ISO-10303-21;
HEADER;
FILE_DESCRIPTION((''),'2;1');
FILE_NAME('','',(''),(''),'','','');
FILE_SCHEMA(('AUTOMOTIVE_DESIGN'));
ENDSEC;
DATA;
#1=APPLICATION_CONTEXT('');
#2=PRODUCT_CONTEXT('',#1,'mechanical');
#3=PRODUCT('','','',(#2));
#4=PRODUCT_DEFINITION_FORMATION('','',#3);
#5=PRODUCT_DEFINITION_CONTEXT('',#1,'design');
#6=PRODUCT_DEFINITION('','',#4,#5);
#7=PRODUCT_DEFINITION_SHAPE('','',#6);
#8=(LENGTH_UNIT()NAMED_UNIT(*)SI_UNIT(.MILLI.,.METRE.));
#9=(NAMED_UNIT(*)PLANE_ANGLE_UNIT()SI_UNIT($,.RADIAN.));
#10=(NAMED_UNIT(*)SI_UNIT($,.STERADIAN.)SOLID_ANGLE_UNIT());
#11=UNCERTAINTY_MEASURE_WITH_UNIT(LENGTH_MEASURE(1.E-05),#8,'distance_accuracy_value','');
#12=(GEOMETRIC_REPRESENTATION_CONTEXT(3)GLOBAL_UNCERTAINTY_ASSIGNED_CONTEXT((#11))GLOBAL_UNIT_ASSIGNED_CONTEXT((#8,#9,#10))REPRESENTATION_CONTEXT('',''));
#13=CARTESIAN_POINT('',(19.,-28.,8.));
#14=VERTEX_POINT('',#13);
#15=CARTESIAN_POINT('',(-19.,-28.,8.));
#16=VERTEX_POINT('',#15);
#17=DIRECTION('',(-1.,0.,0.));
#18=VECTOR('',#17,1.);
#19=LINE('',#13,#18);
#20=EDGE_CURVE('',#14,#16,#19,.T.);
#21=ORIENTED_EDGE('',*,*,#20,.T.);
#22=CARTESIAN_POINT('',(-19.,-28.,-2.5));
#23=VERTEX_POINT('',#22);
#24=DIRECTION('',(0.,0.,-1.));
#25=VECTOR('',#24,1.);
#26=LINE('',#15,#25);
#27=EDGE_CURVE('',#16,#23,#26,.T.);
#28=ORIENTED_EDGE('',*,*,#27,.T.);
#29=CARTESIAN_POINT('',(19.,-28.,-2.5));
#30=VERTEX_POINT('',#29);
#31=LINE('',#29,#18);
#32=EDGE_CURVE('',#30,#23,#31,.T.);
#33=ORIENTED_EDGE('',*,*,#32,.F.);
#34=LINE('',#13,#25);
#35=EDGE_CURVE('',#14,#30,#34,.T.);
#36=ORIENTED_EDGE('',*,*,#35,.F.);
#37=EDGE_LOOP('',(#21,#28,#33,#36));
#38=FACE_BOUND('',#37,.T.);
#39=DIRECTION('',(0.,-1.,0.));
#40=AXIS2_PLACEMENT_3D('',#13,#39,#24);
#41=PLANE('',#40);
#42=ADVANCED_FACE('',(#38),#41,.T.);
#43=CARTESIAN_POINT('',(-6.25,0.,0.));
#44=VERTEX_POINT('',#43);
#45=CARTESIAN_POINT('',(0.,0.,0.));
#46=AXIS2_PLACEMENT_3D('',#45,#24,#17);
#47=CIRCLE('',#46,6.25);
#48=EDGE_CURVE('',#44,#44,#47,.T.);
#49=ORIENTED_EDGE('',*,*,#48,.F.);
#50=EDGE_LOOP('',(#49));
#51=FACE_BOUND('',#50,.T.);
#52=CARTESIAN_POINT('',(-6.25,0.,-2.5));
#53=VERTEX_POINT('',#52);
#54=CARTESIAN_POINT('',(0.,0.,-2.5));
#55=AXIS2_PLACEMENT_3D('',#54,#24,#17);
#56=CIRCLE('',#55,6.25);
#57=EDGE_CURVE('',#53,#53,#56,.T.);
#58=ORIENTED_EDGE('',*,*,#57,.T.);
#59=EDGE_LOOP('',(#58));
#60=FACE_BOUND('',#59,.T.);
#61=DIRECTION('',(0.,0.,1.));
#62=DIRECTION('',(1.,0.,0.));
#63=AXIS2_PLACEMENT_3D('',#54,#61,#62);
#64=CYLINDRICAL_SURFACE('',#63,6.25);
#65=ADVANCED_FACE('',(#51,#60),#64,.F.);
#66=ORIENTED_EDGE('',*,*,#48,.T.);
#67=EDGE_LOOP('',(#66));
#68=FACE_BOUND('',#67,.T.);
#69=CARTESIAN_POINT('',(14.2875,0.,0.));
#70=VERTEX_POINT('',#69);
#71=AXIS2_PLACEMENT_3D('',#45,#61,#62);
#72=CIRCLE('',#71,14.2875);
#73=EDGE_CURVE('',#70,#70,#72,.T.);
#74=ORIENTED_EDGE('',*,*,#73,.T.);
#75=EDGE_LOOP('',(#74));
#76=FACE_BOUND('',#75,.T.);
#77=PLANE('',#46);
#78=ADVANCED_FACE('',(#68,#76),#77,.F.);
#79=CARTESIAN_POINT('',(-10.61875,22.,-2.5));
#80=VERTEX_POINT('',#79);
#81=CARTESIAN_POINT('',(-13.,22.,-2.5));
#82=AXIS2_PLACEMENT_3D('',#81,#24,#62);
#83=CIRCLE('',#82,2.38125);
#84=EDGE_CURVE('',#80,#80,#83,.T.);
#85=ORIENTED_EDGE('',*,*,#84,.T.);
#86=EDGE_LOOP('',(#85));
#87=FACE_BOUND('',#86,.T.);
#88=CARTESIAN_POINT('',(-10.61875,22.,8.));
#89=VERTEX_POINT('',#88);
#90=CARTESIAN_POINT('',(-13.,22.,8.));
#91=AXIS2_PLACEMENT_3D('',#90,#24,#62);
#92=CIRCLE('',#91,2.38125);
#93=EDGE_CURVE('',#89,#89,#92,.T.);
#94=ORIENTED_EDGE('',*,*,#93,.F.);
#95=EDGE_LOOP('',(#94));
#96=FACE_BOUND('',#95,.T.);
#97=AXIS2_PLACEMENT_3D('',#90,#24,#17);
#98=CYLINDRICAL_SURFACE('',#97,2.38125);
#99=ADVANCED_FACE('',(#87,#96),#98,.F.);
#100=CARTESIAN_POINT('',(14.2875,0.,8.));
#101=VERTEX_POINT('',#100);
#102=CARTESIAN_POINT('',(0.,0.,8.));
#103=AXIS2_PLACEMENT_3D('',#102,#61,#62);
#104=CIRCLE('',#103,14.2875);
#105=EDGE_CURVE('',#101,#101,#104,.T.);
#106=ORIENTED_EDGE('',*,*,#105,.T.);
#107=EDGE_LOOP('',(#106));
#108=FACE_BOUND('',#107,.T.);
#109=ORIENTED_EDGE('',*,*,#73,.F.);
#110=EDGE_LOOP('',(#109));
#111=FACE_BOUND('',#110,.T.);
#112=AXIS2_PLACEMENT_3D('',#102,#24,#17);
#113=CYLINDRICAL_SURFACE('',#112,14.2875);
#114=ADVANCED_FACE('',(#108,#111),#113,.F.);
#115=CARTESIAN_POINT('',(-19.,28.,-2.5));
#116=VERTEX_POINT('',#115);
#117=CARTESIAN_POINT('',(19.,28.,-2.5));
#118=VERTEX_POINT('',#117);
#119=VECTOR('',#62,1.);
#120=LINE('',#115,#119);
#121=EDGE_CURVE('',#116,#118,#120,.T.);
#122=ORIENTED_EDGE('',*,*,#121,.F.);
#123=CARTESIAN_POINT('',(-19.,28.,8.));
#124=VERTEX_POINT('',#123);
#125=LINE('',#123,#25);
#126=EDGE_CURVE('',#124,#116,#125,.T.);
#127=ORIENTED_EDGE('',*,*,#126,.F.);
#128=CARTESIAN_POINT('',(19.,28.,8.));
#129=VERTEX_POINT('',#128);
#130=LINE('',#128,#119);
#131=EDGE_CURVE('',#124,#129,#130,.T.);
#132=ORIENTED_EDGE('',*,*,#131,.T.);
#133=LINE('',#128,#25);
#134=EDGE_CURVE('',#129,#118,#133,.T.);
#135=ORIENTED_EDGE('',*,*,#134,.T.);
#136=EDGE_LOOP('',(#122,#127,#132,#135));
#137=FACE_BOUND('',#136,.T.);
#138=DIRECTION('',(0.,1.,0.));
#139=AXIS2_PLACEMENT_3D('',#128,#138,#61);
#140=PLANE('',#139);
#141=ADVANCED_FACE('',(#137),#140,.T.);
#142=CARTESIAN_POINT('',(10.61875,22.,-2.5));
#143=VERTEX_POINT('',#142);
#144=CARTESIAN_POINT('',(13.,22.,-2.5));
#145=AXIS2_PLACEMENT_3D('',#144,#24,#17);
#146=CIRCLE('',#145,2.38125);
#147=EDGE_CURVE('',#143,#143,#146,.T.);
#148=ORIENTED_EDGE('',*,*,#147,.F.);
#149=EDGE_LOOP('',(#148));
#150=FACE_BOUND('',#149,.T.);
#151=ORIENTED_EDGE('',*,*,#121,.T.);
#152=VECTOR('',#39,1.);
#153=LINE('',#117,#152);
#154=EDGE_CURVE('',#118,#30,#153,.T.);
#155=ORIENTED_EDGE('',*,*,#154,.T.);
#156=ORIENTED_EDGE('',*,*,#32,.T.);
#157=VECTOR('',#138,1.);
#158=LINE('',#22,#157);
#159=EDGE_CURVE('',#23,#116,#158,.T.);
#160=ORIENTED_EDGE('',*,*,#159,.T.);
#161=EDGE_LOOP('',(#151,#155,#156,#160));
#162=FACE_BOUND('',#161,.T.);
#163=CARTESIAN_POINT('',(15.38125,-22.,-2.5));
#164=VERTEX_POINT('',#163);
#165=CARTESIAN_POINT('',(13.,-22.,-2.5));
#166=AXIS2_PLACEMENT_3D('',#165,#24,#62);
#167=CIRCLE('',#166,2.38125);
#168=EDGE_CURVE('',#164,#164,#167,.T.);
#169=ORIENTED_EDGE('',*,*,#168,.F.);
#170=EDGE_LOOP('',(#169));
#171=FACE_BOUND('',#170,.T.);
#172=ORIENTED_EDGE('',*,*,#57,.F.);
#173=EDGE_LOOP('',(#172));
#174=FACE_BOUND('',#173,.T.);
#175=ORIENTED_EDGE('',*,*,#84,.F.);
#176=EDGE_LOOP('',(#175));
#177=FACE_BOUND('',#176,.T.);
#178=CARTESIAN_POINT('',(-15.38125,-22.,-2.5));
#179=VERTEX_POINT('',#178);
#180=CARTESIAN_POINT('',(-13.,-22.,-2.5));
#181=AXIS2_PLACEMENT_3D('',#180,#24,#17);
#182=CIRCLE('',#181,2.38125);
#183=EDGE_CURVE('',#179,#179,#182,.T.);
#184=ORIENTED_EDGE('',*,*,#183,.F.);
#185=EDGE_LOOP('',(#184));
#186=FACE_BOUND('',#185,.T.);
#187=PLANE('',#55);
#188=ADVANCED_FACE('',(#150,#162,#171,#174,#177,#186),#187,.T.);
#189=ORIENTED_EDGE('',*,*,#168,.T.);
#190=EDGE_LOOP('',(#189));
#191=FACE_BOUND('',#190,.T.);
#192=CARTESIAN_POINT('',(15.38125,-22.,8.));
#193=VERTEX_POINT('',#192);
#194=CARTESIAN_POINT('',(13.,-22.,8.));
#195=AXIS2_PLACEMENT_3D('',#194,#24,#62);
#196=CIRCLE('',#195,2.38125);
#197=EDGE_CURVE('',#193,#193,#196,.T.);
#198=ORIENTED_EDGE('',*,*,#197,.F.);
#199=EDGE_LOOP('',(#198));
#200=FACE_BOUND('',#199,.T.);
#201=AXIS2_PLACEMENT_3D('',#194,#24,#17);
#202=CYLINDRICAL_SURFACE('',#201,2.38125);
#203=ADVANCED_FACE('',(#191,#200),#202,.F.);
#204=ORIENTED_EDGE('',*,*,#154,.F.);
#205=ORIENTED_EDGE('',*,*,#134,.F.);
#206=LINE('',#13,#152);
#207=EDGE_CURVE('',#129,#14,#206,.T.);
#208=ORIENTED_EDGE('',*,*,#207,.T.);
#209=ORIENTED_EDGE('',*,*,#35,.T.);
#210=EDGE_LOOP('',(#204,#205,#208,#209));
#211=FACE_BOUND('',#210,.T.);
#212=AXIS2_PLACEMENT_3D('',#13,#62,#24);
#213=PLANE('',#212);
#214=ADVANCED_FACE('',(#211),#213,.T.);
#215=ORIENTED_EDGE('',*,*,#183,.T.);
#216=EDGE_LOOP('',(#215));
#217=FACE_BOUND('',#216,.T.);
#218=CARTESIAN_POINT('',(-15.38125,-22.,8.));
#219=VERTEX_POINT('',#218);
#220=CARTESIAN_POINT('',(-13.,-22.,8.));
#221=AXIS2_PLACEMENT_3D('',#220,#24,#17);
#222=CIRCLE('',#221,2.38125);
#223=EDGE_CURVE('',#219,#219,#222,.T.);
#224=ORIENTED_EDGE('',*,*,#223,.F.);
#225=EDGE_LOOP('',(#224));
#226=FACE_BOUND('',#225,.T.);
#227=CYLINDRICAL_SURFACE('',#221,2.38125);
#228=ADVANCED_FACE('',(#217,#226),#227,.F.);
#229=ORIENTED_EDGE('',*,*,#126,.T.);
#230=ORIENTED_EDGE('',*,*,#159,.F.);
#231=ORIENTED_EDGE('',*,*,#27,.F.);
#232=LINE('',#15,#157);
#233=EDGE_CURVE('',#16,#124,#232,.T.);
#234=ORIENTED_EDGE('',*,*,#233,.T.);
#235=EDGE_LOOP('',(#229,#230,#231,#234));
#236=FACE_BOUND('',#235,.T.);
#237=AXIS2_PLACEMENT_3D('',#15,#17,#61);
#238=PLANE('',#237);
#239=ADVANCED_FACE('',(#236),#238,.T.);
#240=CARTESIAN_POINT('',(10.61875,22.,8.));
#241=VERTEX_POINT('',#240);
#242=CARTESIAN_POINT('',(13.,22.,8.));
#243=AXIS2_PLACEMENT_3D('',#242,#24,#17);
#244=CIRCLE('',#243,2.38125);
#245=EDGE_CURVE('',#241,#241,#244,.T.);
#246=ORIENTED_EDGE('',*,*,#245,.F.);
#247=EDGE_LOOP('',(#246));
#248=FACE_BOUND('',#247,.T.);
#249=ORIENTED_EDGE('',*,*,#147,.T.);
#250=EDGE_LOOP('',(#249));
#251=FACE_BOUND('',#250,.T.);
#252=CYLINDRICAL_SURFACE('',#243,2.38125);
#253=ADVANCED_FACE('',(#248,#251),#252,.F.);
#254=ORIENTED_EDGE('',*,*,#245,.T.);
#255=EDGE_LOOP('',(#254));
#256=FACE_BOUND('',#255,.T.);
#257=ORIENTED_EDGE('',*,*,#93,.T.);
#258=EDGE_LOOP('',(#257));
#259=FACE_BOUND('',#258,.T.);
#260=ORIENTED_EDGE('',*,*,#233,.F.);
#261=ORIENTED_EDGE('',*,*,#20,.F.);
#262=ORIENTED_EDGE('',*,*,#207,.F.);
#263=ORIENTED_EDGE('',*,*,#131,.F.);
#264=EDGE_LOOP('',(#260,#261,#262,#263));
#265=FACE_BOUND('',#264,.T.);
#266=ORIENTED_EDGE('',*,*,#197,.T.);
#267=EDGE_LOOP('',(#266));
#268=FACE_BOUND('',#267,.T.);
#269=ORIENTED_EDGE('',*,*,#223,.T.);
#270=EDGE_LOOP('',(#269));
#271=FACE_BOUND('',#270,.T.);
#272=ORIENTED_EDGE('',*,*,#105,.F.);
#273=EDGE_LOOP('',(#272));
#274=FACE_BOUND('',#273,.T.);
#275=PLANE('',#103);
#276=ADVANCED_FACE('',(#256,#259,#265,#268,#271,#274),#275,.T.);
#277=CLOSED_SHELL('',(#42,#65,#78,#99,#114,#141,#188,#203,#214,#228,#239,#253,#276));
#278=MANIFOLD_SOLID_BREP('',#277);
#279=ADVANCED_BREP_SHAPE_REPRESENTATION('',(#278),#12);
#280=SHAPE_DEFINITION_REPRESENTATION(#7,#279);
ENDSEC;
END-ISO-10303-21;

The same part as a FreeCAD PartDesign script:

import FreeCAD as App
import Part
import Sketcher
Q = App.Units.Quantity

doc = App.newDocument("Part")
body = doc.addObject("PartDesign::Body", "Body")

sketch1 = body.newObject("Sketcher::SketchObject", "Sketch")
sketch1.AttachmentSupport = (doc.getObject("XY_Plane"), [""])
sketch1.MapMode = "FlatFace"
sketch1.addGeometry(Part.Circle(App.Vector(0, 0, 0), App.Vector(0, 0, 1), 18), False)
sketch1.addGeometry(Part.Circle(App.Vector(0, 0, 0), App.Vector(0, 0, 1), 14), False)
sketch1.addConstraint(Sketcher.Constraint("Coincident", 0, 3, -1, 1))
sketch1.addConstraint(Sketcher.Constraint("Coincident", 1, 3, -1, 1))
sketch1.addConstraint(Sketcher.Constraint("Diameter", 0, Q("36.575 mm")))
sketch1.addConstraint(Sketcher.Constraint("Diameter", 1, Q("28.575 mm")))
pad1 = body.newObject("PartDesign::Pad", "Pad")
pad1.Profile = sketch1
pad1.Length = 8

sketch2 = body.newObject("Sketcher::SketchObject", "Sketch001")
sketch2.AttachmentSupport = (doc.getObject("XY_Plane"), [""])
sketch2.MapMode = "FlatFace"
sketch2.addGeometry(Part.LineSegment(App.Vector(19, 28, 0), App.Vector(19, -28, 0)), False)
sketch2.addGeometry(Part.LineSegment(App.Vector(19, -28, 0), App.Vector(-19, -28, 0)), False)
sketch2.addGeometry(Part.LineSegment(App.Vector(-19, -28, 0), App.Vector(-19, 28, 0)), False)
sketch2.addGeometry(Part.LineSegment(App.Vector(-19, 28, 0), App.Vector(19, 28, 0)), False)
sketch2.addGeometry(Part.Circle(App.Vector(0, 0, 0), App.Vector(0, 0, 1), 18), False)
sketch2.addConstraint(Sketcher.Constraint("Coincident", 0, 2, 1, 1))
sketch2.addConstraint(Sketcher.Constraint("Coincident", 1, 2, 2, 1))
sketch2.addConstraint(Sketcher.Constraint("Coincident", 2, 2, 3, 1))
sketch2.addConstraint(Sketcher.Constraint("Coincident", 3, 2, 0, 1))
sketch2.addConstraint(Sketcher.Constraint("Vertical", 0))
sketch2.addConstraint(Sketcher.Constraint("Horizontal", 1))
sketch2.addConstraint(Sketcher.Constraint("Vertical", 2))
sketch2.addConstraint(Sketcher.Constraint("Horizontal", 3))
sketch2.addConstraint(Sketcher.Constraint("Coincident", 4, 3, -1, 1))
sketch2.addConstraint(Sketcher.Constraint("Symmetric", 0, 2, 2, 2, -1, 1))
sketch2.addConstraint(Sketcher.Constraint("DistanceX", 1, 2, 1, 1, Q("38 mm")))
sketch2.addConstraint(Sketcher.Constraint("DistanceY", 0, 2, 0, 1, Q("56 mm")))
sketch2.addConstraint(Sketcher.Constraint("Diameter", 4, Q("36.575 mm")))
pad2 = body.newObject("PartDesign::Pad", "Pad001")
pad2.Profile = sketch2
pad2.Length = 8

sketch3 = body.newObject("Sketcher::SketchObject", "Sketch002")
sketch3.AttachmentSupport = (doc.getObject("XY_Plane"), [""])
sketch3.MapMode = "FlatFace"
sketch3.addGeometry(Part.LineSegment(App.Vector(19, 28, 0), App.Vector(19, -28, 0)), False)
sketch3.addGeometry(Part.LineSegment(App.Vector(19, -28, 0), App.Vector(-19, -28, 0)), False)
sketch3.addGeometry(Part.LineSegment(App.Vector(-19, -28, 0), App.Vector(-19, 28, 0)), False)
sketch3.addGeometry(Part.LineSegment(App.Vector(-19, 28, 0), App.Vector(19, 28, 0)), False)
sketch3.addGeometry(Part.Circle(App.Vector(0, 0, 0), App.Vector(0, 0, 1), 6), False)
sketch3.addConstraint(Sketcher.Constraint("Coincident", 0, 2, 1, 1))
sketch3.addConstraint(Sketcher.Constraint("Coincident", 1, 2, 2, 1))
sketch3.addConstraint(Sketcher.Constraint("Coincident", 2, 2, 3, 1))
sketch3.addConstraint(Sketcher.Constraint("Coincident", 3, 2, 0, 1))
sketch3.addConstraint(Sketcher.Constraint("Vertical", 0))
sketch3.addConstraint(Sketcher.Constraint("Horizontal", 1))
sketch3.addConstraint(Sketcher.Constraint("Vertical", 2))
sketch3.addConstraint(Sketcher.Constraint("Horizontal", 3))
sketch3.addConstraint(Sketcher.Constraint("Coincident", 4, 3, -1, 1))
sketch3.addConstraint(Sketcher.Constraint("Symmetric", 0, 2, 2, 2, -1, 1))
sketch3.addConstraint(Sketcher.Constraint("Diameter", 4, Q("12.5 mm")))
sketch3.addConstraint(Sketcher.Constraint("DistanceX", 1, 2, 1, 1, Q("38 mm")))
sketch3.addConstraint(Sketcher.Constraint("DistanceY", 0, 2, 0, 1, Q("56 mm")))
pad3 = body.newObject("PartDesign::Pad", "Pad002")
pad3.Profile = sketch3
pad3.Length = 2.5
pad3.Reversed = True

sketch4 = body.newObject("Sketcher::SketchObject", "Sketch003")
sketch4.AttachmentSupport = (doc.getObject("XY_Plane"), [""])
sketch4.MapMode = "FlatFace"
sketch4.AttachmentOffset = App.Placement(App.Vector(0, 0, -2.5), App.Rotation())
sketch4.addGeometry(Part.Circle(App.Vector(13, 22, 0), App.Vector(0, 0, 1), 2.4), False)
sketch4.addGeometry(Part.Circle(App.Vector(-13, 22, 0), App.Vector(0, 0, 1), 2.4), False)
sketch4.addGeometry(Part.Circle(App.Vector(-13, -22, 0), App.Vector(0, 0, 1), 2.4), False)
sketch4.addGeometry(Part.Circle(App.Vector(13, -22, 0), App.Vector(0, 0, 1), 2.4), False)
sketch4.addConstraint(Sketcher.Constraint("Equal", 0, 1))
sketch4.addConstraint(Sketcher.Constraint("Equal", 1, 2))
sketch4.addConstraint(Sketcher.Constraint("Equal", 2, 3))
sketch4.addConstraint(Sketcher.Constraint("Symmetric", 0, 3, 2, 3, -1, 1))
sketch4.addConstraint(Sketcher.Constraint("Symmetric", 1, 3, 3, 3, -1, 1))
sketch4.addConstraint(Sketcher.Constraint("Symmetric", 0, 3, 1, 3, -2))
sketch4.addConstraint(Sketcher.Constraint("DistanceX", -1, 1, 0, 3, Q("13 mm")))
sketch4.addConstraint(Sketcher.Constraint("DistanceY", -1, 1, 0, 3, Q("22 mm")))
sketch4.addConstraint(Sketcher.Constraint("Diameter", 0, Q("4.7625 mm")))
pocket1 = body.newObject("PartDesign::Pocket", "Pocket")
pocket1.Profile = sketch4
pocket1.Type = "ThroughAll"
pocket1.Reversed = True

doc.recompute()
